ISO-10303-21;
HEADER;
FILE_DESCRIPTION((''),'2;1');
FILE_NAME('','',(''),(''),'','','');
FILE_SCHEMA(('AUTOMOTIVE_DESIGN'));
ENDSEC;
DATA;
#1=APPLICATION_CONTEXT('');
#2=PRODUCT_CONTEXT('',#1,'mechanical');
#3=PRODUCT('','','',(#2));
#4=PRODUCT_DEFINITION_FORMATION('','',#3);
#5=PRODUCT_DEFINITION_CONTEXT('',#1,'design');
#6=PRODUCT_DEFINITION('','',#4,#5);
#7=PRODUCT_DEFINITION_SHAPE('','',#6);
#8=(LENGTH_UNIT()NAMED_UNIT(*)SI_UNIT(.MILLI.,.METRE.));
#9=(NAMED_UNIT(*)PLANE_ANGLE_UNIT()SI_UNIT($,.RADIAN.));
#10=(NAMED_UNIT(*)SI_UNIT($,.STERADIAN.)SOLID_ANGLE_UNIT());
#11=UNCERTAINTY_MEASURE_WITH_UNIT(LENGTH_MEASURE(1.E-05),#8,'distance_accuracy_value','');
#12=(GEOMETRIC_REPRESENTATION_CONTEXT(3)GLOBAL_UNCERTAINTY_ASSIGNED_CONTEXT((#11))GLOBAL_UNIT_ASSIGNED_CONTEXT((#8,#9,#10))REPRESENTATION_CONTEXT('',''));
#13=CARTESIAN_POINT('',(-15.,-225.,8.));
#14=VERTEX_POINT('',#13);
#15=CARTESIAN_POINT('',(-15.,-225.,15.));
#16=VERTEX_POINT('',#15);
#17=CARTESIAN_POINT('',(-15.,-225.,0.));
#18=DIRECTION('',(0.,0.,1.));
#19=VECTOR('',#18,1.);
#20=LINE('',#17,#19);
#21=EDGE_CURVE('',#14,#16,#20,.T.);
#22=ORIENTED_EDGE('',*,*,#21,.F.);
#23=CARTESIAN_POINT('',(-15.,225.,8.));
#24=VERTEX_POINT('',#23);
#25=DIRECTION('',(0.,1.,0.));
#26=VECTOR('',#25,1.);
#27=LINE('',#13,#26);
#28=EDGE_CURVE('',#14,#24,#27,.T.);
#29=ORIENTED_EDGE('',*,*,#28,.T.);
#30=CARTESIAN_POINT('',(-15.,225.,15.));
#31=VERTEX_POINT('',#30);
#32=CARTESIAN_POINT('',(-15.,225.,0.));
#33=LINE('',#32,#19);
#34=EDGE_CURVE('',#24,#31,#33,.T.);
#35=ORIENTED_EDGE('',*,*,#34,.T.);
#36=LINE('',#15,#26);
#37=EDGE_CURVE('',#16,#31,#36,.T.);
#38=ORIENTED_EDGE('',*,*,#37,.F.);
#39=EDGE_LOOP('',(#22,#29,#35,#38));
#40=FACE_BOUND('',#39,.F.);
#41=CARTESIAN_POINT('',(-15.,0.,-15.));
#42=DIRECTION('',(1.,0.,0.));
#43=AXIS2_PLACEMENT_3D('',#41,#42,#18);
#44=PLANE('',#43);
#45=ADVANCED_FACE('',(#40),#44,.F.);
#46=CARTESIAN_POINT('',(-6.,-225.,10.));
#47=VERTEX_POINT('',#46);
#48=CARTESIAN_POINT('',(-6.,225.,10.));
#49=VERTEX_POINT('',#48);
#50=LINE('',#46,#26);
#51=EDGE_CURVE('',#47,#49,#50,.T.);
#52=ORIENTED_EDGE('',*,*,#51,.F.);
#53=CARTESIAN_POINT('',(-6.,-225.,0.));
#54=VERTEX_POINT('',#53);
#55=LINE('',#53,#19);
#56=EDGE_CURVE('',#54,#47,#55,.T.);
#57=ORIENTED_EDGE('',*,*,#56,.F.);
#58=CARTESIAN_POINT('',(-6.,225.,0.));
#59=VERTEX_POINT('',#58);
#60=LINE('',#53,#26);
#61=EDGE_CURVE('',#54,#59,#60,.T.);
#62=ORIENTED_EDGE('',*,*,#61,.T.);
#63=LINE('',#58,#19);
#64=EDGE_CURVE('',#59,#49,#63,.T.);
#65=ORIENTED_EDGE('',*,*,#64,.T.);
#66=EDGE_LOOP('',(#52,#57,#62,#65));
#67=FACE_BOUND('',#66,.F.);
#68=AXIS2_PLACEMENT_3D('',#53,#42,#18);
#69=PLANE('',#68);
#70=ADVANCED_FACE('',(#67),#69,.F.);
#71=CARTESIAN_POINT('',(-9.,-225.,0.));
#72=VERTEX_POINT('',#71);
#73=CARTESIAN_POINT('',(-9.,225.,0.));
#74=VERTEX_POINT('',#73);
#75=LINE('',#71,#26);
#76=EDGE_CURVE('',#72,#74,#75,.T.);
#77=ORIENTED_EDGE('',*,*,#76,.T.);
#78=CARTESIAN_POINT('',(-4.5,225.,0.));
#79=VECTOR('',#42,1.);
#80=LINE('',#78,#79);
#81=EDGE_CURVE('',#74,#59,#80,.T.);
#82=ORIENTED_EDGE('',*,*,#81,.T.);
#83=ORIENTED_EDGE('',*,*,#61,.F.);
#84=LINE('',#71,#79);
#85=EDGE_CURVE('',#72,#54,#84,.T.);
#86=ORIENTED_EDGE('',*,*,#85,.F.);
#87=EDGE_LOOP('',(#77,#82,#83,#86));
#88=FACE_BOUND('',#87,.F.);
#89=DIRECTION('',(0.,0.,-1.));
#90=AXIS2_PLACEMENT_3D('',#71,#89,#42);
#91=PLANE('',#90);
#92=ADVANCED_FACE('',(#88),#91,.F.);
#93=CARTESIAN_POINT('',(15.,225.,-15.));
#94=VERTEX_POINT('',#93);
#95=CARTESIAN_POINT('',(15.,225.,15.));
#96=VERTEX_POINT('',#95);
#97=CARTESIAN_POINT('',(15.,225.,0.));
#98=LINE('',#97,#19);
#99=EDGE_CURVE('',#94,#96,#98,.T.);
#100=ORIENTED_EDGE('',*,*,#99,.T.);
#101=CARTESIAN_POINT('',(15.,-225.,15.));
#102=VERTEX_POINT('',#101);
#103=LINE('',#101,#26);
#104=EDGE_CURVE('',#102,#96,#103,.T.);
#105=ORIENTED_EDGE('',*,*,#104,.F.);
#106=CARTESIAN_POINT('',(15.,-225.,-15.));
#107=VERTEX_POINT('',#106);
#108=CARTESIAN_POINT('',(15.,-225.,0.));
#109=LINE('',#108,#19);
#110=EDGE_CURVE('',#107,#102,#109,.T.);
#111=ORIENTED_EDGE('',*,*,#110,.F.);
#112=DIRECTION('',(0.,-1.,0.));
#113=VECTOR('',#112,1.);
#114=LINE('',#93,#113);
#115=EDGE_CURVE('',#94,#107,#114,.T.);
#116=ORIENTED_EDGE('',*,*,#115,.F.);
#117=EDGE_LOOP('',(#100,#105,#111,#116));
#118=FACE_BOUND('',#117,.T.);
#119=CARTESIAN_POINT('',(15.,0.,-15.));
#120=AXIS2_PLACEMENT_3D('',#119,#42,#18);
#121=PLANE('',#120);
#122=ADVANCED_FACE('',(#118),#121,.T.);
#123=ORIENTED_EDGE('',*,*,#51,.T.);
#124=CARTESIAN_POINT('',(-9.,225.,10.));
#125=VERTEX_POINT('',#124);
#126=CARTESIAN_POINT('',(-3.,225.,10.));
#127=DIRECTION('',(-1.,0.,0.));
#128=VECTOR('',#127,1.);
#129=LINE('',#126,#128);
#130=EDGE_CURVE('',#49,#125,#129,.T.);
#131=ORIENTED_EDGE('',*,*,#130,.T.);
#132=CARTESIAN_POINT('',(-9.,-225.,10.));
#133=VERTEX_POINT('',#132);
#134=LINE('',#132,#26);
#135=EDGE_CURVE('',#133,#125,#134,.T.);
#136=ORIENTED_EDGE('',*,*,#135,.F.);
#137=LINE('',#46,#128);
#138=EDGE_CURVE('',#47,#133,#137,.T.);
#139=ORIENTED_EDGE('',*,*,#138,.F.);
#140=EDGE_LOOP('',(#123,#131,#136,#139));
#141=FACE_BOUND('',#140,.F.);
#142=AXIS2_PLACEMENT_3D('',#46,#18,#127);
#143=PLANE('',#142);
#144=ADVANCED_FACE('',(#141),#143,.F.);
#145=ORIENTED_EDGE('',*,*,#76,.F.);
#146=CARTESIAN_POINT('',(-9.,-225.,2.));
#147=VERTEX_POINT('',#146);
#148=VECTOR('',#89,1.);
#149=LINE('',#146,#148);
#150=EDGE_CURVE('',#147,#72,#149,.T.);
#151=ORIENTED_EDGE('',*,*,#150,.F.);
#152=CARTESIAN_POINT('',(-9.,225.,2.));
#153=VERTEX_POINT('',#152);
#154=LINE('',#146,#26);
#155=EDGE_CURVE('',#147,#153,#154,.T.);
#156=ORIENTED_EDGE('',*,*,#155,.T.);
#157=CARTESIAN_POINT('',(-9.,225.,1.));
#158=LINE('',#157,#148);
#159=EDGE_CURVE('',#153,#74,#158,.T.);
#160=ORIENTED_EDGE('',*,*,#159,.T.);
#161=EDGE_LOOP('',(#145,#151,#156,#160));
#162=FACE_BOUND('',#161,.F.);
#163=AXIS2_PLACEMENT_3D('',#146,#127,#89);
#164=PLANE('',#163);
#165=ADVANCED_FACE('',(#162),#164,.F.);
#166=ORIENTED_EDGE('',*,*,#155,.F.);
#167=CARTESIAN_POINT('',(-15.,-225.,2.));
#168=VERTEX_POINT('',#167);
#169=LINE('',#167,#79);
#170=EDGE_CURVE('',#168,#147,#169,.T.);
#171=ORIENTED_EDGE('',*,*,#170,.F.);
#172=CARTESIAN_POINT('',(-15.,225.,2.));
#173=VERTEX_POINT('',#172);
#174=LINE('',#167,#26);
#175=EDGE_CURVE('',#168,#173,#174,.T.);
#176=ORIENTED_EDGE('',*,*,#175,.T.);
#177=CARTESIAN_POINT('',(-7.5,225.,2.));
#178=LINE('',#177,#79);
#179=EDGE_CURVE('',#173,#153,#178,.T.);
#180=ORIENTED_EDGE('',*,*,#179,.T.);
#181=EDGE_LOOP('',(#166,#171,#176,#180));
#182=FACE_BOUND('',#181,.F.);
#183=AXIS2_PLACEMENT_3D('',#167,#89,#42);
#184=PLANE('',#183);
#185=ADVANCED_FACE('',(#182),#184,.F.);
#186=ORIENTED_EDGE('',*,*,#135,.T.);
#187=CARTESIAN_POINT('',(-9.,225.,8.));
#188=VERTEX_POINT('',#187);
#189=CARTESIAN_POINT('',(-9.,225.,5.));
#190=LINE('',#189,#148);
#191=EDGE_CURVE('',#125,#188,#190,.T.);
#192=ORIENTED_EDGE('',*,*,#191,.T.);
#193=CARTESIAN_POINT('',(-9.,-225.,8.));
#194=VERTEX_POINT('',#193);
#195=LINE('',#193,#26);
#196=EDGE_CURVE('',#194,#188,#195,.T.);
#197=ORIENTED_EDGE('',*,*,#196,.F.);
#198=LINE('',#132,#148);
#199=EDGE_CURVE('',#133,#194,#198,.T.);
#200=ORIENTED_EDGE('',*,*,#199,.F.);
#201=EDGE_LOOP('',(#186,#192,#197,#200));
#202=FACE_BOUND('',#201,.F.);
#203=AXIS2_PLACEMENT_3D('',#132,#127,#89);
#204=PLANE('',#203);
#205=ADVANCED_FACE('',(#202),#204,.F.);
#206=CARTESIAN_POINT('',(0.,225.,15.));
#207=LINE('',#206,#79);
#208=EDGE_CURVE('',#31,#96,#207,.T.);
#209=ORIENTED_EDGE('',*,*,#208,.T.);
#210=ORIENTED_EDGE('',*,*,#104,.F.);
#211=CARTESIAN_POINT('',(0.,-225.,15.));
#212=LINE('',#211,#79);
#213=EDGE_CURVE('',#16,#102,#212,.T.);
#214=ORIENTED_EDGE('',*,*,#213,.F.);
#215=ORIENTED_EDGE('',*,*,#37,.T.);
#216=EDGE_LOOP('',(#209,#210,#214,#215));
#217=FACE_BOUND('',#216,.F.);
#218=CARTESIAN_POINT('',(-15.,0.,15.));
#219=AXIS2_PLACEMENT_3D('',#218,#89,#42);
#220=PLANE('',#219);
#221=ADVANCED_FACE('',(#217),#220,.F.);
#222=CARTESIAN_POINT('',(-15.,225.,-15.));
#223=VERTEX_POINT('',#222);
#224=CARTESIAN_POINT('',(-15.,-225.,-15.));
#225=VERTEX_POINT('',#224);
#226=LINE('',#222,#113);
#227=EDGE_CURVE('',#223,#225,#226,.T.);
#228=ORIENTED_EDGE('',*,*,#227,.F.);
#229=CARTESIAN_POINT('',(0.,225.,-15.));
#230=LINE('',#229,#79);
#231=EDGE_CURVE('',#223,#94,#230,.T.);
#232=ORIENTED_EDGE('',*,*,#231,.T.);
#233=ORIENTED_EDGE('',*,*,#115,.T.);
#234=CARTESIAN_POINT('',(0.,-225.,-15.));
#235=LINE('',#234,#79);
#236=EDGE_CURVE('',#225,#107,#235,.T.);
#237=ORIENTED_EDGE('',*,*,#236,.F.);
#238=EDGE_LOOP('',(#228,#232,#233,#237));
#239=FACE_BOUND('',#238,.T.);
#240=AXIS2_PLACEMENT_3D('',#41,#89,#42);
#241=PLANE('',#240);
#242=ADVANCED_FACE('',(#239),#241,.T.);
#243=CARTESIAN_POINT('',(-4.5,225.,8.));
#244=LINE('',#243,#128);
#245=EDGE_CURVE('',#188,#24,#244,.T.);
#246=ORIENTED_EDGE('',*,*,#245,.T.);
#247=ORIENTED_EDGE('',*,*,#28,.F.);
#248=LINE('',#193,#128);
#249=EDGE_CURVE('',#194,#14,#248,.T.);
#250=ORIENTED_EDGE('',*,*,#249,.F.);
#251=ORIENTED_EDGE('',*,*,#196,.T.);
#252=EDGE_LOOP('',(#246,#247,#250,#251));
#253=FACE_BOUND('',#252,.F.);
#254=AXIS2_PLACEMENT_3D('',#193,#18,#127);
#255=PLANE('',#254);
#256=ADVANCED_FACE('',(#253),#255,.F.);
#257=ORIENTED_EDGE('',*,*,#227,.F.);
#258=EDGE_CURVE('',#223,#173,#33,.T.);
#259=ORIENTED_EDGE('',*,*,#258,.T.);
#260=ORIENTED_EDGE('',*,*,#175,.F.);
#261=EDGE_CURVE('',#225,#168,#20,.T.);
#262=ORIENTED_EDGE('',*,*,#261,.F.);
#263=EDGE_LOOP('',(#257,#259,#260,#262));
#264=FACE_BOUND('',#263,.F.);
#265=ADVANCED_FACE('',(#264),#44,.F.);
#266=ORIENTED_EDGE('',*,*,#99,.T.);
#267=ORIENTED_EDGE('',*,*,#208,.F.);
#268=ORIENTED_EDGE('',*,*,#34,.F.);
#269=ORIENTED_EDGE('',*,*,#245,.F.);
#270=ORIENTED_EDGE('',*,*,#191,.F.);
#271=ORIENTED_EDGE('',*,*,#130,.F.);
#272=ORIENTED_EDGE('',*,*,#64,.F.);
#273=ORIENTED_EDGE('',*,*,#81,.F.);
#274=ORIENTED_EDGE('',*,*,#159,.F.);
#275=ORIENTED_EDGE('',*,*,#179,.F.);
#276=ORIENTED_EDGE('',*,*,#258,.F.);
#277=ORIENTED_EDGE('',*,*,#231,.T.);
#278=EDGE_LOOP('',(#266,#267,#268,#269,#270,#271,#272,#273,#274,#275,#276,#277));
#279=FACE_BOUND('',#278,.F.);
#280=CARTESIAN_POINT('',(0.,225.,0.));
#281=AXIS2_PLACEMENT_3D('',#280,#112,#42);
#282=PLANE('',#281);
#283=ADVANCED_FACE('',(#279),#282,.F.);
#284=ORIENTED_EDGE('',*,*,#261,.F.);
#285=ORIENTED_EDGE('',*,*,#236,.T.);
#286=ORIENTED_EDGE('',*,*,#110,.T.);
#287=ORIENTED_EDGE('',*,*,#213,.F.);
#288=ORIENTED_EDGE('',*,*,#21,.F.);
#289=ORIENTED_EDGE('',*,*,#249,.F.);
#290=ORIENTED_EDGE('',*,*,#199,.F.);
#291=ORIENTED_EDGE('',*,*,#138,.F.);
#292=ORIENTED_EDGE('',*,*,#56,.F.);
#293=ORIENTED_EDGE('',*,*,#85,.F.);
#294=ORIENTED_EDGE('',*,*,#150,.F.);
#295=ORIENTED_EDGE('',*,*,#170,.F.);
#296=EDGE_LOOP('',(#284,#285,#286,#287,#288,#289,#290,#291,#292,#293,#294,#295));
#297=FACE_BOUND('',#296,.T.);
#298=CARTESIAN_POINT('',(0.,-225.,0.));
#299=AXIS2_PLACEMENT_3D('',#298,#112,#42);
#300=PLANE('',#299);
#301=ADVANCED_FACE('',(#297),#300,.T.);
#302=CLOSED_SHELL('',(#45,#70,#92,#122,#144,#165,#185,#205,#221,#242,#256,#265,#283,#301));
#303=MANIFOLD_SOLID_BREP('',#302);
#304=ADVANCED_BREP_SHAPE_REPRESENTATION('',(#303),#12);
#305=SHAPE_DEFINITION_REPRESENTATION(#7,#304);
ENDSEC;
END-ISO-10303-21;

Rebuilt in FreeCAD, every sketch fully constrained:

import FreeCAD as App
import Part
import Sketcher
Q = App.Units.Quantity

doc = App.newDocument("Part")
body = doc.addObject("PartDesign::Body", "Body")

# Sketch on XZ plane
sketch1 = doc.addObject("Sketcher::SketchObject", "Sketch")
body.addObject(sketch1)
sketch1.AttachmentSupport = (doc.XZ_Plane, [""])
sketch1.MapMode = "FlatFace"
sketch1.addGeometry(Part.LineSegment(App.Vector(-15, 15, 0), App.Vector(-15, -15, 0)), False)
sketch1.addGeometry(Part.LineSegment(App.Vector(-15, -15, 0), App.Vector(15, -15, 0)), False)
sketch1.addGeometry(Part.LineSegment(App.Vector(15, -15, 0), App.Vector(15, 15, 0)), False)
sketch1.addGeometry(Part.LineSegment(App.Vector(15, 15, 0), App.Vector(-15, 15, 0)), False)
sketch1.addConstraint(Sketcher.Constraint("Coincident", 0, 2, 1, 1))
sketch1.addConstraint(Sketcher.Constraint("Coincident", 1, 2, 2, 1))
sketch1.addConstraint(Sketcher.Constraint("Coincident", 2, 2, 3, 1))
sketch1.addConstraint(Sketcher.Constraint("Coincident", 3, 2, 0, 1))
sketch1.addConstraint(Sketcher.Constraint("Vertical", 0))
sketch1.addConstraint(Sketcher.Constraint("Horizontal", 1))
sketch1.addConstraint(Sketcher.Constraint("Vertical", 2))
sketch1.addConstraint(Sketcher.Constraint("Horizontal", 3))
sketch1.addConstraint(Sketcher.Constraint("Symmetric", 0, 2, 2, 2, -1, 1))
sketch1.addConstraint(Sketcher.Constraint("Equal", 3, 0))
sketch1.addConstraint(Sketcher.Constraint("DistanceX", 1, 1, 1, 2, Q("30 mm")))
pad1 = doc.addObject("PartDesign::Pad", "Pad")
body.addObject(pad1)
pad1.Profile = sketch1
pad1.Type = "TwoLengths"
pad1.Length = 225
pad1.Length2 = 225

# Sketch on XZ plane
sketch2 = doc.addObject("Sketcher::SketchObject", "Sketch001")
body.addObject(sketch2)
sketch2.AttachmentSupport = (doc.XZ_Plane, [""])
sketch2.MapMode = "FlatFace"
sketch2.AttachmentOffset = App.Placement(App.Vector(0, 0, 225), App.Rotation())
sketch2.addGeometry(Part.LineSegment(App.Vector(-9, 8, 0), App.Vector(-15, 8, 0)), False)
sketch2.addGeometry(Part.LineSegment(App.Vector(-15, 8, 0), App.Vector(-15, 2, 0)), False)
sketch2.addGeometry(Part.LineSegment(App.Vector(-15, 2, 0), App.Vector(-9, 2, 0)), False)
sketch2.addGeometry(Part.LineSegment(App.Vector(-9, 2, 0), App.Vector(-9, 0, 0)), False)
sketch2.addGeometry(Part.LineSegment(App.Vector(-9, 0, 0), App.Vector(-6, 0, 0)), False)
sketch2.addGeometry(Part.LineSegment(App.Vector(-6, 0, 0), App.Vector(-6, 10, 0)), False)
sketch2.addGeometry(Part.LineSegment(App.Vector(-6, 10, 0), App.Vector(-9, 10, 0)), False)
sketch2.addGeometry(Part.LineSegment(App.Vector(-9, 10, 0), App.Vector(-9, 8, 0)), False)
sketch2.addConstraint(Sketcher.Constraint("Coincident", 0, 2, 1, 1))
sketch2.addConstraint(Sketcher.Constraint("Coincident", 1, 2, 2, 1))
sketch2.addConstraint(Sketcher.Constraint("Coincident", 2, 2, 3, 1))
sketch2.addConstraint(Sketcher.Constraint("Coincident", 3, 2, 4, 1))
sketch2.addConstraint(Sketcher.Constraint("Coincident", 4, 2, 5, 1))
sketch2.addConstraint(Sketcher.Constraint("Coincident", 5, 2, 6, 1))
sketch2.addConstraint(Sketcher.Constraint("Coincident", 6, 2, 7, 1))
sketch2.addConstraint(Sketcher.Constraint("Coincident", 7, 2, 0, 1))
sketch2.addConstraint(Sketcher.Constraint("Horizontal", 0))
sketch2.addConstraint(Sketcher.Constraint("Vertical", 1))
sketch2.addConstraint(Sketcher.Constraint("Horizontal", 2))
sketch2.addConstraint(Sketcher.Constraint("Vertical", 3))
sketch2.addConstraint(Sketcher.Constraint("Horizontal", 4))
sketch2.addConstraint(Sketcher.Constraint("Vertical", 5))
sketch2.addConstraint(Sketcher.Constraint("Horizontal", 6))
sketch2.addConstraint(Sketcher.Constraint("Vertical", 7))
sketch2.addConstraint(Sketcher.Constraint("PointOnObject", 3, 2, -1))
sketch2.addConstraint(Sketcher.Constraint("Vertical", 3, 2, 6, 2))
sketch2.addConstraint(Sketcher.Constraint("Equal", 2, 1))
sketch2.addConstraint(Sketcher.Constraint("Equal", 3, 7))
sketch2.addConstraint(Sketcher.Constraint("DistanceX", 0, 2, 0, 1, Q("6 mm")))
sketch2.addConstraint(Sketcher.Constraint("DistanceX", 4, 1, 4, 2, Q("3 mm")))
sketch2.addConstraint(Sketcher.Constraint("DistanceY", 3, 2, 3, 1, Q("2 mm")))
sketch2.addConstraint(Sketcher.Constraint("DistanceX", 0, 2, -1, 1, Q("15 mm")))
pocket1 = doc.addObject("PartDesign::Pocket", "Pocket")
body.addObject(pocket1)
pocket1.Profile = sketch2
pocket1.Type = "ThroughAll"

doc.recompute()
